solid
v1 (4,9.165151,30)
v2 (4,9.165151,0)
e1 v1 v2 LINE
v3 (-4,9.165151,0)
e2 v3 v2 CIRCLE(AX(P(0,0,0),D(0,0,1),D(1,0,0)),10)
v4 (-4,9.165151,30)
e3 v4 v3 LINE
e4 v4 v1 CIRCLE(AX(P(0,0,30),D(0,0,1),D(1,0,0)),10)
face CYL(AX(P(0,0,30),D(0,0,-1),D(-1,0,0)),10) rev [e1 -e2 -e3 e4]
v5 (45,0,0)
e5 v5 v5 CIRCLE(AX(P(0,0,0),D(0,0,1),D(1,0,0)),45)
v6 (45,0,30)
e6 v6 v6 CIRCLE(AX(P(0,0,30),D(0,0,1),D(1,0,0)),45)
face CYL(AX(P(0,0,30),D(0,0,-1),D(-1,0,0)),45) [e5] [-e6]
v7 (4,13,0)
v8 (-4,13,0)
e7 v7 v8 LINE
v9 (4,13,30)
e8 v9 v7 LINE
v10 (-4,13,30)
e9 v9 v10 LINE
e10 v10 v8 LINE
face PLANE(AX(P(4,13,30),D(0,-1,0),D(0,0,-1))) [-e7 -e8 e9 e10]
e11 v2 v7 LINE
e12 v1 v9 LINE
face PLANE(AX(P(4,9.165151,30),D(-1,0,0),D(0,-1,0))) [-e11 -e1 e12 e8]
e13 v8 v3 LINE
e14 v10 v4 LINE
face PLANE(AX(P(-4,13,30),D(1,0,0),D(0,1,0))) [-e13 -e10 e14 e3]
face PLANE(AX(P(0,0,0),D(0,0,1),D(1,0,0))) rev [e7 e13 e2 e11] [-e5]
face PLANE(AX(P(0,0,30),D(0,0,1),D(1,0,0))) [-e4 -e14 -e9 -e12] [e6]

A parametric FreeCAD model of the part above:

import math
import FreeCAD as App
import Part
import Sketcher

V = App.Vector
Q = App.Units.Quantity

doc = App.newDocument("Part")
body = doc.addObject("PartDesign::Body", "Body")

# Sketch on XY plane
sketch1 = body.newObject("Sketcher::SketchObject", "Sketch")
sketch1.AttachmentSupport = (doc.getObject("XY_Plane"), [""])
sketch1.MapMode = "FlatFace"
sketch1.addGeometry([
    Part.Circle(V(0, 0, 0), V(0, 0, 1), 45),  # 0
    Part.LineSegment(V(4, 13, 0), V(4, 9.2, 0)),  # 1
    Part.ArcOfCircle(Part.Circle(V(0, 0, 0), V(0, 0, 1), 10), math.radians(114), math.radians(426)),  # 2
    Part.LineSegment(V(-4, 9.2, 0), V(-4, 13, 0)),  # 3
    Part.LineSegment(V(-4, 13, 0), V(4, 13, 0)),  # 4
], False)
sketch1.addConstraint([
    Sketcher.Constraint("Coincident", 1, 2, 2, 2),
    Sketcher.Constraint("Coincident", 2, 1, 3, 1),
    Sketcher.Constraint("Coincident", 3, 2, 4, 1),
    Sketcher.Constraint("Coincident", 4, 2, 1, 1),
    Sketcher.Constraint("Vertical", 1),
    Sketcher.Constraint("Vertical", 3),
    Sketcher.Constraint("Horizontal", 4),
    Sketcher.Constraint("Coincident", 0, 3, -1, 1),
    Sketcher.Constraint("Coincident", 2, 3, -1, 1),
    Sketcher.Constraint("Horizontal", 1, 2, 2, 1),
    Sketcher.Constraint("Diameter", 0, Q("90 mm")),
    Sketcher.Constraint("Radius", 2, Q("10 mm")),
    Sketcher.Constraint("DistanceX", 4, 1, 4, 2, Q("8 mm")),
    Sketcher.Constraint("DistanceY", -1, 1, 3, 2, Q("13 mm")),
])
pad1 = body.newObject("PartDesign::Pad", "Pad")
pad1.Profile = sketch1
pad1.Length = 30

doc.recompute()
